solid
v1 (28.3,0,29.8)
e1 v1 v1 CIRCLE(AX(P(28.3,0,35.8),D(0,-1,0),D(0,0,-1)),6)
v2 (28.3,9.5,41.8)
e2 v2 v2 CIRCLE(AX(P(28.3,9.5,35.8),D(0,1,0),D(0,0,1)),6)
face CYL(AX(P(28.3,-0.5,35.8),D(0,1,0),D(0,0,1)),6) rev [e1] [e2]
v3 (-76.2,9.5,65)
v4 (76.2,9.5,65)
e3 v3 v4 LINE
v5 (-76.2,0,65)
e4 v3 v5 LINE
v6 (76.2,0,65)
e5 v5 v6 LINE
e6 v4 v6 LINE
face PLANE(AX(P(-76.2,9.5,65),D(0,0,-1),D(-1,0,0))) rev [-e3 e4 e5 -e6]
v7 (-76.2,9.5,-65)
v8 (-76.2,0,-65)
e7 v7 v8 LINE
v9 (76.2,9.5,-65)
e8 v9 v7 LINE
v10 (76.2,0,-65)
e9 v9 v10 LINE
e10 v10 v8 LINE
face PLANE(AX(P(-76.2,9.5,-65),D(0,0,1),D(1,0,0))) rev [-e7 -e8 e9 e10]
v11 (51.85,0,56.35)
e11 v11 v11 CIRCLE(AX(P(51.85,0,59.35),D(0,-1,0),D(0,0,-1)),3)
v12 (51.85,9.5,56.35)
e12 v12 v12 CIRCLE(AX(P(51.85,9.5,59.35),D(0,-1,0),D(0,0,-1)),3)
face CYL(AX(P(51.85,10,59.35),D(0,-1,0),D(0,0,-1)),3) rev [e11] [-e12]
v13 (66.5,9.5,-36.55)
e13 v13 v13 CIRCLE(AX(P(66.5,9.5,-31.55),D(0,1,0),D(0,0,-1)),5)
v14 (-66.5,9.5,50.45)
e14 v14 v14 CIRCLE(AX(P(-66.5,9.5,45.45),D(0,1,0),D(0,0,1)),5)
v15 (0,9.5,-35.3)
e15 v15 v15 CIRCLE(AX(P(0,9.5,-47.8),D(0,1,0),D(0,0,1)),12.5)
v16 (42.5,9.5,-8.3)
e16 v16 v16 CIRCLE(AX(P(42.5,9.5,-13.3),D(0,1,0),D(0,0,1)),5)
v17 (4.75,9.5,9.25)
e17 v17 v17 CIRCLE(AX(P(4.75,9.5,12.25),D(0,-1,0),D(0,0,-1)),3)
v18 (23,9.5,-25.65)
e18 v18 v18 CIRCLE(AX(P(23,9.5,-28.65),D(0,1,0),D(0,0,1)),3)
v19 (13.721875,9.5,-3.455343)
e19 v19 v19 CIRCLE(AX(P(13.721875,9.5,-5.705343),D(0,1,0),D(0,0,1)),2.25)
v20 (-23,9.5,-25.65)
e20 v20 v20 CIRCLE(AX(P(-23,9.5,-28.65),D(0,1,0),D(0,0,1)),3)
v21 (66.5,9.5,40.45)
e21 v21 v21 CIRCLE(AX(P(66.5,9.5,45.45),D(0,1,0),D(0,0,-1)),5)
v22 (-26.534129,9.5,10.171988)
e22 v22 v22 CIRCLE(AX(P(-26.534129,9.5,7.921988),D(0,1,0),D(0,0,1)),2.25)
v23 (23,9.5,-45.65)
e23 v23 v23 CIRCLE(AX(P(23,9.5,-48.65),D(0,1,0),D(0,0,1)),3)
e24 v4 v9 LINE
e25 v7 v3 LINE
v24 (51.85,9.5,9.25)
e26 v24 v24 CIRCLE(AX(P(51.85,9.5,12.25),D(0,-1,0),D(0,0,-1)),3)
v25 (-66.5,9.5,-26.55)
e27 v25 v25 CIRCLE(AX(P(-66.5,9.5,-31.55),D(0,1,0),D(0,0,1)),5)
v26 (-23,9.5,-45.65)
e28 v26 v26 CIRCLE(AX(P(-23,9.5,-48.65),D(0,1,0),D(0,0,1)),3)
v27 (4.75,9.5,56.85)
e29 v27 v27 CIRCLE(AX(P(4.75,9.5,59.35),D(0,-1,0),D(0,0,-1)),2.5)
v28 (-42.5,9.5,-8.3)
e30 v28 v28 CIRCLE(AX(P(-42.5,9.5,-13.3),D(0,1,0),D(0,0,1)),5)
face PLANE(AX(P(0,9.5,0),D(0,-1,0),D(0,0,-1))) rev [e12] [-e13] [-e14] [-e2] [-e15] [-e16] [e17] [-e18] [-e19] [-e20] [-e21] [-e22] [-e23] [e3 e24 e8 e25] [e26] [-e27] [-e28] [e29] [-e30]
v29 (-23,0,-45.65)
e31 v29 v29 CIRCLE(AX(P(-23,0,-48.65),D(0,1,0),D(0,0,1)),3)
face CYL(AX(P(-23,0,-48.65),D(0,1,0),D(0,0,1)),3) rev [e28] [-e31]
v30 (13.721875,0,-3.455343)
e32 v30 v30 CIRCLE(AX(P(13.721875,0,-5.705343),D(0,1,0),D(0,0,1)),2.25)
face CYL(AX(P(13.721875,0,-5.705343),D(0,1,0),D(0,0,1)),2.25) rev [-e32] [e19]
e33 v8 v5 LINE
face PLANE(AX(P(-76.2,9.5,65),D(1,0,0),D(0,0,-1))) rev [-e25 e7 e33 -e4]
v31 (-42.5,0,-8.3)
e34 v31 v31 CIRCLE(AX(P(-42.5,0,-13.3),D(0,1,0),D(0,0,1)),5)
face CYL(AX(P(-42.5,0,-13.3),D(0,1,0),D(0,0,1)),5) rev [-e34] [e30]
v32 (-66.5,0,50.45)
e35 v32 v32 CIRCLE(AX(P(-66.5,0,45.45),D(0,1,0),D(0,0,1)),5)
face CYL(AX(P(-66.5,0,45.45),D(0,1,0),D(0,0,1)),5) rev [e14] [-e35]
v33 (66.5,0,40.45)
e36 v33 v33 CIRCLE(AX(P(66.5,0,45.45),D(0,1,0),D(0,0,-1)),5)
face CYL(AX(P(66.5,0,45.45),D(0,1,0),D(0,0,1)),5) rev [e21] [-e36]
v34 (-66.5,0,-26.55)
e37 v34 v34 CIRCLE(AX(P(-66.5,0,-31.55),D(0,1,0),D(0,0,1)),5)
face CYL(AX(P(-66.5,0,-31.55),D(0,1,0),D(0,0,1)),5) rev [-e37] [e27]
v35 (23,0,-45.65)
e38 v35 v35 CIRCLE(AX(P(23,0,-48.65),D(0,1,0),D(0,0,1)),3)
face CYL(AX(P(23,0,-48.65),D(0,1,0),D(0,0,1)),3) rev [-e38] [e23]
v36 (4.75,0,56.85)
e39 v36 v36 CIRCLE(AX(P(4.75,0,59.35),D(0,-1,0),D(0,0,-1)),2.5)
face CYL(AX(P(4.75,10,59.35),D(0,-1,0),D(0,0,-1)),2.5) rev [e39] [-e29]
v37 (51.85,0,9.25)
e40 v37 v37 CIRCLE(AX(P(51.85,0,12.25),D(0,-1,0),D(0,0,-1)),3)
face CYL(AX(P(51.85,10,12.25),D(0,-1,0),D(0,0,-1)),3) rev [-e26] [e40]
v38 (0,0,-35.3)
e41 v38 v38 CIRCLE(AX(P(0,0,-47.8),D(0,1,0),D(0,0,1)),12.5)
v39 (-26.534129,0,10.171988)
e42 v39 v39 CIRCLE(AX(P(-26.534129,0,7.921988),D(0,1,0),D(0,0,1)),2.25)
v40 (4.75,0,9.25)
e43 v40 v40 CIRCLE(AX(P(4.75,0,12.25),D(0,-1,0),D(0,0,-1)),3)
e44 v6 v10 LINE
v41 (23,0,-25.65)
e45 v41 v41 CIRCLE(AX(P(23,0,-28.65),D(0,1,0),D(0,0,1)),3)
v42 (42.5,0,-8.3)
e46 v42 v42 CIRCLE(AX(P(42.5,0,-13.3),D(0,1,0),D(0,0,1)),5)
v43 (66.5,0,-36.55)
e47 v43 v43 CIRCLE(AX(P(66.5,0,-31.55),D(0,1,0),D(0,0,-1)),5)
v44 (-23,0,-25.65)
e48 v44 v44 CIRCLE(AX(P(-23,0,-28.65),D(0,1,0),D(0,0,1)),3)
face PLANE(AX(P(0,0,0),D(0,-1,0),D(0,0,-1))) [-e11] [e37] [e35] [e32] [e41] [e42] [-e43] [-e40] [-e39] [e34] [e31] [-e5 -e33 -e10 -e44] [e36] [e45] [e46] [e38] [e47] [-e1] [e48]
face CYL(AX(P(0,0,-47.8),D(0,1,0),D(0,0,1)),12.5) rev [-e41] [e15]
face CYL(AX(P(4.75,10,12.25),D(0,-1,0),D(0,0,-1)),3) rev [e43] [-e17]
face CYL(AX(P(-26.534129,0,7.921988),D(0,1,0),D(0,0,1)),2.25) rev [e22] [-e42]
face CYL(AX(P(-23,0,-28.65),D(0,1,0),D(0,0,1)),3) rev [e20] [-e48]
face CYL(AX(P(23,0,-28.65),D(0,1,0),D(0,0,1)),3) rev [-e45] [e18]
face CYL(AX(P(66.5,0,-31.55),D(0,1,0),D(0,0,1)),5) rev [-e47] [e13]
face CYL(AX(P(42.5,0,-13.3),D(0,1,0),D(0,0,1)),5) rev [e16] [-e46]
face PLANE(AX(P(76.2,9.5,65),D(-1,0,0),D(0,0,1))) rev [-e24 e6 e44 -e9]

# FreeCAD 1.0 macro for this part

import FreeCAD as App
import Part
import Sketcher

V = App.Vector


def add_polygon(sketch, points):
    """Adds a closed chain of lines whose ends are joined by coincident constraints."""
    first, n = sketch.GeometryCount, len(points)
    for a, b in zip(points, points[1:] + points[:1]):
        sketch.addGeometry(Part.LineSegment(App.Vector(*a, 0), App.Vector(*b, 0)), False)
    for i in range(n):
        sketch.addConstraint(Sketcher.Constraint("Coincident", first + i, 2, first + (i + 1) % n, 1))

doc = App.newDocument("Part")
body = doc.addObject("PartDesign::Body", "Body")

# Sketch on XZ plane
sketch1 = doc.addObject("Sketcher::SketchObject", "Sketch")
body.addObject(sketch1)
sketch1.AttachmentSupport = (doc.XZ_Plane, [""])
sketch1.MapMode = "FlatFace"
add_polygon(sketch1, [(-76, -65), (-76, 65), (76, 65), (76, -65)])  # lines 0-3
sketch1.addConstraint([
    Sketcher.Constraint("Vertical", 0),
    Sketcher.Constraint("Horizontal", 1),
    Sketcher.Constraint("Vertical", 2),
    Sketcher.Constraint("Horizontal", 3),
    Sketcher.Constraint("Symmetric", 0, 2, 2, 2, -1, 1),
    Sketcher.Constraint("DistanceY", 0, 1, 0, 2, 130.0),
    Sketcher.Constraint("DistanceX", 1, 1, 1, 2, 152.4),
])
pad1 = doc.addObject("PartDesign::Pad", "Pad")
body.addObject(pad1)
pad1.Profile = sketch1
pad1.Length = 9.5
pad1.Reversed = True

# Sketch on XZ plane
sketch2 = doc.addObject("Sketcher::SketchObject", "Sketch001")
body.addObject(sketch2)
sketch2.AttachmentSupport = (doc.XZ_Plane, [""])
sketch2.MapMode = "FlatFace"
sketch2.addGeometry([
    Part.Circle(V(4.8, 59.4, 0), V(0, 0, 1), 2.5),
    Part.Circle(V(51.9, 59.4, 0), V(0, 0, 1), 3),
    Part.Circle(V(4.8, 12.2, 0), V(0, 0, 1), 3),
    Part.Circle(V(51.9, 12.2, 0), V(0, 0, 1), 3),
], False)
sketch2.addConstraint([
    Sketcher.Constraint("Equal", 1, 2),
    Sketcher.Constraint("Equal", 2, 3),
    Sketcher.Constraint("Horizontal", 0, 3, 1, 3),
    Sketcher.Constraint("Horizontal", 2, 3, 3, 3),
    Sketcher.Constraint("Vertical", 0, 3, 2, 3),
    Sketcher.Constraint("Vertical", 1, 3, 3, 3),
    Sketcher.Constraint("Diameter", 0, 5.0),
    Sketcher.Constraint("Diameter", 1, 6.0),
    Sketcher.Constraint("DistanceX", 0, 3, 1, 3, 47.1),
    Sketcher.Constraint("DistanceY", 2, 3, 0, 3, 47.1),
    Sketcher.Constraint("DistanceX", -1, 1, 0, 3, 4.75),
    Sketcher.Constraint("DistanceY", -1, 1, 0, 3, 59.35),
])
pocket1 = doc.addObject("PartDesign::Pocket", "Pocket")
body.addObject(pocket1)
pocket1.Profile = sketch2
pocket1.Length = 10

# Sketch on XZ plane
sketch3 = doc.addObject("Sketcher::SketchObject", "Sketch002")
body.addObject(sketch3)
sketch3.AttachmentSupport = (doc.XZ_Plane, [""])
sketch3.MapMode = "FlatFace"
sketch3.AttachmentOffset = App.Placement(V(0, 0, -9.5), App.Rotation())
sketch3.addGeometry(Part.Circle(V(28, 36, 0), V(0, 0, 1), 6), False)
sketch3.addConstraint([
    Sketcher.Constraint("Diameter", 0, 12.0),
    Sketcher.Constraint("DistanceX", -1, 1, 0, 3, 28.3),
    Sketcher.Constraint("DistanceY", -1, 1, 0, 3, 35.8),
])
pocket2 = doc.addObject("PartDesign::Pocket", "Pocket001")
body.addObject(pocket2)
pocket2.Profile = sketch3
pocket2.Length = 10
pocket2.Reversed = True

# Sketch on XZ plane
sketch4 = doc.addObject("Sketcher::SketchObject", "Sketch003")
body.addObject(sketch4)
sketch4.AttachmentSupport = (doc.XZ_Plane, [""])
sketch4.MapMode = "FlatFace"
sketch4.AttachmentOffset = App.Placement(V(0, 0, -9.5), App.Rotation())
sketch4.addGeometry([
    Part.Circle(V(-26.5, 7.9, 0), V(0, 0, 1), 2.2),
    Part.Circle(V(13.7, -5.7, 0), V(0, 0, 1), 2.2),
    Part.Circle(V(0, -47.8, 0), V(0, 0, 1), 12.5),
], False)
sketch4.addConstraint([
    Sketcher.Constraint("Equal", 0, 1),
    Sketcher.Constraint("PointOnObject", 2, 3, -2),
    Sketcher.Constraint("Diameter", 2, 25.0),
    Sketcher.Constraint("Diameter", 0, 4.5),
    Sketcher.Constraint("DistanceY", 2, 3, -1, 1, 47.8),
    Sketcher.Constraint("DistanceX", 0, 3, -1, 1, 26.534129),
    Sketcher.Constraint("DistanceY", -1, 1, 0, 3, 7.921988),
    Sketcher.Constraint("DistanceY", 1, 3, 0, 3, 13.627331),
    Sketcher.Constraint("DistanceX", -1, 1, 1, 3, 13.721875),
])
pocket3 = doc.addObject("PartDesign::Pocket", "Pocket002")
body.addObject(pocket3)
pocket3.Profile = sketch4
pocket3.Type = "ThroughAll"
pocket3.Reversed = True

# Sketch on XZ plane
sketch5 = doc.addObject("Sketcher::SketchObject", "Sketch004")
body.addObject(sketch5)
sketch5.AttachmentSupport = (doc.XZ_Plane, [""])
sketch5.MapMode = "FlatFace"
sketch5.AttachmentOffset = App.Placement(V(0, 0, -9.5), App.Rotation())
sketch5.addGeometry([
    Part.Circle(V(23, -28.6, 0), V(0, 0, 1), 3),
    Part.Circle(V(-23, -28.6, 0), V(0, 0, 1), 3),
    Part.Circle(V(23, -48.6, 0), V(0, 0, 1), 3),
    Part.Circle(V(-23, -48.6, 0), V(0, 0, 1), 3),
], False)
sketch5.addConstraint([
    Sketcher.Constraint("Equal", 0, 1),
    Sketcher.Constraint("Equal", 1, 2),
    Sketcher.Constraint("Equal", 2, 3),
    Sketcher.Constraint("Symmetric", 0, 3, 1, 3, -2),
    Sketcher.Constraint("Symmetric", 2, 3, 3, 3, -2),
    Sketcher.Constraint("Vertical", 0, 3, 2, 3),
    Sketcher.Constraint("Diameter", 0, 6.0),
    Sketcher.Constraint("DistanceX", -1, 1, 0, 3, 23.0),
    Sketcher.Constraint("DistanceY", 2, 3, 0, 3, 20.0),
    Sketcher.Constraint("DistanceY", 0, 3, -1, 1, 28.65),
])
pocket4 = doc.addObject("PartDesign::Pocket", "Pocket003")
body.addObject(pocket4)
pocket4.Profile = sketch5
pocket4.Type = "ThroughAll"
pocket4.Reversed = True

# Sketch on XZ plane
sketch6 = doc.addObject("Sketcher::SketchObject", "Sketch005")
body.addObject(sketch6)
sketch6.AttachmentSupport = (doc.XZ_Plane, [""])
sketch6.MapMode = "FlatFace"
sketch6.AttachmentOffset = App.Placement(V(0, 0, -9.5), App.Rotation())
sketch6.addGeometry([
    Part.Circle(V(-66, -32, 0), V(0, 0, 1), 5),  # 0
    Part.Circle(V(-66, 45, 0), V(0, 0, 1), 5),  # 1
    Part.Circle(V(66, 45, 0), V(0, 0, 1), 5),  # 2
    Part.Circle(V(66, -32, 0), V(0, 0, 1), 5),  # 3
    Part.Circle(V(-42, -13, 0), V(0, 0, 1), 5),  # 4
    Part.Circle(V(42, -13, 0), V(0, 0, 1), 5),  # 5
], False)
sketch6.addConstraint([
    Sketcher.Constraint("Equal", 0, 1),
    Sketcher.Constraint("Equal", 1, 2),
    Sketcher.Constraint("Equal", 2, 3),
    Sketcher.Constraint("Equal", 3, 4),
    Sketcher.Constraint("Equal", 4, 5),
    Sketcher.Constraint("Symmetric", 1, 3, 2, 3, -2),
    Sketcher.Constraint("Symmetric", 0, 3, 3, 3, -2),
    Sketcher.Constraint("Symmetric", 4, 3, 5, 3, -2),
    Sketcher.Constraint("Vertical", 0, 3, 1, 3),
    Sketcher.Constraint("Diameter", 0, 10.0),
    Sketcher.Constraint("DistanceY", 0, 3, 1, 3, 77.0),
    Sketcher.Constraint("DistanceX", 1, 3, 2, 3, 133.0),
    Sketcher.Constraint("DistanceX", 0, 3, 4, 3, 24.0),
    Sketcher.Constraint("DistanceY", 4, 3, -1, 1, 13.3),
    Sketcher.Constraint("DistanceY", 0, 3, -1, 1, 31.55),
])
pocket5 = doc.addObject("PartDesign::Pocket", "Pocket004")
body.addObject(pocket5)
pocket5.Profile = sketch6
pocket5.Type = "ThroughAll"
pocket5.Reversed = True

doc.recompute()
